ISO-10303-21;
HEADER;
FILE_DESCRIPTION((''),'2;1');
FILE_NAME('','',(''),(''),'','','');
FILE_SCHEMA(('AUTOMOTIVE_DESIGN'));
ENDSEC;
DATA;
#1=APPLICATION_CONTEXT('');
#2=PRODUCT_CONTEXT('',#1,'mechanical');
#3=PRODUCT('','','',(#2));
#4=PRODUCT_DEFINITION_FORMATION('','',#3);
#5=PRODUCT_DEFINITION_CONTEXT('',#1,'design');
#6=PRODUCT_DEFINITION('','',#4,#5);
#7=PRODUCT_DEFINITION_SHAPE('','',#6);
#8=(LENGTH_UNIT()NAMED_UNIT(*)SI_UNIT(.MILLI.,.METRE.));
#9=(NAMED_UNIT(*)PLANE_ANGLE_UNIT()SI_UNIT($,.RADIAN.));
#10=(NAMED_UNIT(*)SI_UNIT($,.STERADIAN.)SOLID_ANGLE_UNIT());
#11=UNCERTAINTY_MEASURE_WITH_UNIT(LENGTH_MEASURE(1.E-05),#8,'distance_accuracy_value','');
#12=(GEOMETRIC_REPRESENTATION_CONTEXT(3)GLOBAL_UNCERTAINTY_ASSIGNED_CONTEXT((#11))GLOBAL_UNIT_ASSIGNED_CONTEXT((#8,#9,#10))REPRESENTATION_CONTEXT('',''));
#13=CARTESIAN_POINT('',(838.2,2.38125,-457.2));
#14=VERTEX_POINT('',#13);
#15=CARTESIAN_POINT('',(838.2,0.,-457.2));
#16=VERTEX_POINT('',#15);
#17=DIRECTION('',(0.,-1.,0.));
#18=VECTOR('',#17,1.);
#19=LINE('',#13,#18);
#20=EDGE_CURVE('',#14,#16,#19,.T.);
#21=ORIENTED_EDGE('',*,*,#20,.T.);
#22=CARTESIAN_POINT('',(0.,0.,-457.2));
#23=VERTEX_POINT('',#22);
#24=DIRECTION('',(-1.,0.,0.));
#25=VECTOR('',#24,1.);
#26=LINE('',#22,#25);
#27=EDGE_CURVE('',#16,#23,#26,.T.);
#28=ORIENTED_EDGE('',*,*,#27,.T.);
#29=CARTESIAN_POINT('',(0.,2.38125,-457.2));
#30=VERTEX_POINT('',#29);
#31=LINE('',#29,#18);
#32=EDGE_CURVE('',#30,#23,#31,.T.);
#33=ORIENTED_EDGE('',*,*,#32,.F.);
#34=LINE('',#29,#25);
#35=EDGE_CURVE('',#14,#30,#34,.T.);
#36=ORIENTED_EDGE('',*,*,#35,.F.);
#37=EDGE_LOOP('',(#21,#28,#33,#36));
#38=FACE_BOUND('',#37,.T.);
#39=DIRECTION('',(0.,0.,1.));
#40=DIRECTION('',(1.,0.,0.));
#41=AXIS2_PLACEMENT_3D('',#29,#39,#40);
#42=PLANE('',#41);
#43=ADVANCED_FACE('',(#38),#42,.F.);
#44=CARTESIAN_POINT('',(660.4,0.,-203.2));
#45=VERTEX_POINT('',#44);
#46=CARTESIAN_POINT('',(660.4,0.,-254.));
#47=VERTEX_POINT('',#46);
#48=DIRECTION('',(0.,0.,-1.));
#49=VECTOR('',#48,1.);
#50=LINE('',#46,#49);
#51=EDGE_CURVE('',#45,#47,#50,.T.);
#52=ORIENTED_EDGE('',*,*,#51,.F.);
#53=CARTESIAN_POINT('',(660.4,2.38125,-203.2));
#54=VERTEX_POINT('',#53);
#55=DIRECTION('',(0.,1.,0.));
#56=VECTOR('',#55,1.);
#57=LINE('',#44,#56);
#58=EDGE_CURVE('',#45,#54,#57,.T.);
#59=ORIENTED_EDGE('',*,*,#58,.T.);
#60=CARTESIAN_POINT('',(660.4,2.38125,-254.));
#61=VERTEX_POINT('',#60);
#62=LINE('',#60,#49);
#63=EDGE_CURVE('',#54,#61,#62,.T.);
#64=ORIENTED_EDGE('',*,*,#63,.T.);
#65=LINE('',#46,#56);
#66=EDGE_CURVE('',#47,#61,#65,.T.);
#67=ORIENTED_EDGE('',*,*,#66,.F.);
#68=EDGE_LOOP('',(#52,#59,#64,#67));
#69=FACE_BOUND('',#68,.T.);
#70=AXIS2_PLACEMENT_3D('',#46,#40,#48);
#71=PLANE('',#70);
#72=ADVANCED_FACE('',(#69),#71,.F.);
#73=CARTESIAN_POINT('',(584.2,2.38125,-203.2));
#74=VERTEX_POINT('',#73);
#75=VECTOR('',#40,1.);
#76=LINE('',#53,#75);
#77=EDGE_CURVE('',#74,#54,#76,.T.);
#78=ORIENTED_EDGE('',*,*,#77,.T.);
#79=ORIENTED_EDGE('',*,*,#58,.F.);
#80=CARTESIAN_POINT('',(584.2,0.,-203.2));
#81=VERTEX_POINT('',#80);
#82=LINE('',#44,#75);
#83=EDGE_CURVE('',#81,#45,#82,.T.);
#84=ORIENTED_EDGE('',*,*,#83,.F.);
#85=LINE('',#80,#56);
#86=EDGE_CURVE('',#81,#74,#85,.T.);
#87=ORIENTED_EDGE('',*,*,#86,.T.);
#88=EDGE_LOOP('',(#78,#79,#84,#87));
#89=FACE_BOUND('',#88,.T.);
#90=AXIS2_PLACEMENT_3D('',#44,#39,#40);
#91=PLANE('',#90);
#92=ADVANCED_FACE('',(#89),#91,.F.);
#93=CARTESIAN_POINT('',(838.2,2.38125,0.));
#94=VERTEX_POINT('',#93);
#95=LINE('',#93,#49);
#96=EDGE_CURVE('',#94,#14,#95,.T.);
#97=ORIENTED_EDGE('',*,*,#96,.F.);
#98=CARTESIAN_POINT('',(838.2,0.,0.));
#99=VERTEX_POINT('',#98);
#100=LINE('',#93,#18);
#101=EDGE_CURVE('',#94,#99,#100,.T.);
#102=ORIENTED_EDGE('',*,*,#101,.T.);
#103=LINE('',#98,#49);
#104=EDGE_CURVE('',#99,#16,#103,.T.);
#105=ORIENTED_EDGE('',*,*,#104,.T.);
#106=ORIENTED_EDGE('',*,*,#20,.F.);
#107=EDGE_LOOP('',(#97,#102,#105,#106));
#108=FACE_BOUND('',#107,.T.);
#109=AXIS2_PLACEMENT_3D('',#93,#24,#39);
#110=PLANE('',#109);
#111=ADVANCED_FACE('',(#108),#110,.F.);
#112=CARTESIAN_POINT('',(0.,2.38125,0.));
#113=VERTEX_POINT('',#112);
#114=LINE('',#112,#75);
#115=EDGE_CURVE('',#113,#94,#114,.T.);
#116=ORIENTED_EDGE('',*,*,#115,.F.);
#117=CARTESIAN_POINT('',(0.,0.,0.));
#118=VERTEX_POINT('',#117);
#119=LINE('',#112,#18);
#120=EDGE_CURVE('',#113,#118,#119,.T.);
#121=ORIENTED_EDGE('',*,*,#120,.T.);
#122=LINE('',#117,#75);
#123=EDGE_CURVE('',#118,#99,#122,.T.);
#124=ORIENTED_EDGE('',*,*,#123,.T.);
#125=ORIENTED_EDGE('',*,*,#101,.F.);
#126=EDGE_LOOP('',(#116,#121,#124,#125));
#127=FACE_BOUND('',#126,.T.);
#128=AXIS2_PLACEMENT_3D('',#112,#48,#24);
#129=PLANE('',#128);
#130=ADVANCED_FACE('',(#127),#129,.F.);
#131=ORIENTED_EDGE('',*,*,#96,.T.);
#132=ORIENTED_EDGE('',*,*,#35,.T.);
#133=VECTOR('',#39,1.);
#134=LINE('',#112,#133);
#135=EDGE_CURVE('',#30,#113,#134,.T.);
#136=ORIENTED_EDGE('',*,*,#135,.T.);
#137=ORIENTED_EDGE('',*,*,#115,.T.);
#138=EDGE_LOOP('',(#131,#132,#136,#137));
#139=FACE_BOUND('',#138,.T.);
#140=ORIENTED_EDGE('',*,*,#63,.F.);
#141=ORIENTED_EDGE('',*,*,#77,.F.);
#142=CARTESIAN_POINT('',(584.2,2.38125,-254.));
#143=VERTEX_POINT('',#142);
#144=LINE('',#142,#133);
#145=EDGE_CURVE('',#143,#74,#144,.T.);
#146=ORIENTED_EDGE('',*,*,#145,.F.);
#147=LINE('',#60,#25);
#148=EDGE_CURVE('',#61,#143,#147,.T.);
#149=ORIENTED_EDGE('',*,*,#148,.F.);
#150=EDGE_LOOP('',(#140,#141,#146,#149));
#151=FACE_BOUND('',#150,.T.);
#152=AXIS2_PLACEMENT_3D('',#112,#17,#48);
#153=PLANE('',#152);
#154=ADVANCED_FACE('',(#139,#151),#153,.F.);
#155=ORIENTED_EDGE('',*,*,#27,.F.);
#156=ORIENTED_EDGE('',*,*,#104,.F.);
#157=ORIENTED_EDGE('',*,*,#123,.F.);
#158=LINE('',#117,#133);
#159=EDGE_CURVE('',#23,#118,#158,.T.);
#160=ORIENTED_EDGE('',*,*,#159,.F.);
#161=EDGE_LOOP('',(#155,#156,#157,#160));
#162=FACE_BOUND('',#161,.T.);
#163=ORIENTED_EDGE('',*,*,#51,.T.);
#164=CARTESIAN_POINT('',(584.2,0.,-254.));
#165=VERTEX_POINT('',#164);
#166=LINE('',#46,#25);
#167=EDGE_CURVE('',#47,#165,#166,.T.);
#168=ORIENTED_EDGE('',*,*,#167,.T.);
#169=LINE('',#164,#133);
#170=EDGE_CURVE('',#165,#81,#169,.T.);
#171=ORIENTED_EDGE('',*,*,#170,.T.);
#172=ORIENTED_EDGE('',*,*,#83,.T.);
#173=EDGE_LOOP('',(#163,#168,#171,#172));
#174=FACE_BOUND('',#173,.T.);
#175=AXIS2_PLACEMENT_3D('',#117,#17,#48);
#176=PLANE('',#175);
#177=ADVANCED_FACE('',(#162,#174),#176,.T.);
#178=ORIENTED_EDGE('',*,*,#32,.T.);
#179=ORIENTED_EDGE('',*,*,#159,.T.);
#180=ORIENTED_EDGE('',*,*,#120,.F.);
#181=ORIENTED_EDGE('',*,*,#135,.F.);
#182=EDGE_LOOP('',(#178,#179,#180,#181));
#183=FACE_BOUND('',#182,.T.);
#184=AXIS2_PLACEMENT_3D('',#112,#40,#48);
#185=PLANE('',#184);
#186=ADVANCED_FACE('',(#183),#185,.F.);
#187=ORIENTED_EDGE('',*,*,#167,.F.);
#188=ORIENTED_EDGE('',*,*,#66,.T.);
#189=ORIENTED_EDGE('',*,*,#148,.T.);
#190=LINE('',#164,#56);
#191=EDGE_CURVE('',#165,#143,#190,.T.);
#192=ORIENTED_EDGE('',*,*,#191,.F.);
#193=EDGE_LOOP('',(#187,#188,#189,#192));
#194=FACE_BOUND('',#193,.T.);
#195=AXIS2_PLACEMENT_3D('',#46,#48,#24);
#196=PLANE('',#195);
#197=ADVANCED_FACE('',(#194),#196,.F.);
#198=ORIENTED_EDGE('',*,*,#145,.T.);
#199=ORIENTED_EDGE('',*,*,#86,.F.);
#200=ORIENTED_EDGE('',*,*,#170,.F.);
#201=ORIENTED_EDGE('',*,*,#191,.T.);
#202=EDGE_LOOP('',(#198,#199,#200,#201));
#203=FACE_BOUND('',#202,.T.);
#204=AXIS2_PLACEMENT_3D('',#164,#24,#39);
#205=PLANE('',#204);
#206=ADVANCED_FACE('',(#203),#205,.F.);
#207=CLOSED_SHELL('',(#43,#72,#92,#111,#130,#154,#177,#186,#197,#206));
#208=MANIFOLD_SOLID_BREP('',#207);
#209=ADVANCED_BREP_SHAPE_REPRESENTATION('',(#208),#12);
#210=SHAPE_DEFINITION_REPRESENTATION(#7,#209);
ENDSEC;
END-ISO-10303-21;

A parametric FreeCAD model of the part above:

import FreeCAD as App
import Part
import Sketcher
Q = App.Units.Quantity

doc = App.newDocument("Part")
body = doc.addObject("PartDesign::Body", "Body")

# Sketch on XZ plane
sketch1 = doc.addObject("Sketcher::SketchObject", "Sketch")
body.addObject(sketch1)
sketch1.AttachmentSupport = (doc.XZ_Plane, [""])
sketch1.MapMode = "FlatFace"
sketch1.addGeometry([
    Part.LineSegment(App.Vector(0, -457, 0), App.Vector(0, 0, 0)),
    Part.LineSegment(App.Vector(0, 0, 0), App.Vector(838, 0, 0)),
    Part.LineSegment(App.Vector(838, 0, 0), App.Vector(838, -457, 0)),
    Part.LineSegment(App.Vector(838, -457, 0), App.Vector(0, -457, 0)),
], False)
sketch1.addConstraint([
    Sketcher.Constraint("Coincident", 0, 2, 1, 1),
    Sketcher.Constraint("Coincident", 1, 2, 2, 1),
    Sketcher.Constraint("Coincident", 2, 2, 3, 1),
    Sketcher.Constraint("Coincident", 3, 2, 0, 1),
    Sketcher.Constraint("Vertical", 0),
    Sketcher.Constraint("Horizontal", 1),
    Sketcher.Constraint("Vertical", 2),
    Sketcher.Constraint("Horizontal", 3),
    Sketcher.Constraint("Coincident", 0, 2, -1, 1),
    Sketcher.Constraint("DistanceX", 1, 1, 1, 2, Q("33 in")),
    Sketcher.Constraint("DistanceY", 0, 1, 0, 2, Q("18 in")),
])
pad1 = doc.addObject("PartDesign::Pad", "Pad")
body.addObject(pad1)
pad1.Profile = sketch1
pad1.Length = Q("0.09375 in")
pad1.Reversed = True

# Sketch on XZ plane
sketch2 = doc.addObject("Sketcher::SketchObject", "Sketch001")
body.addObject(sketch2)
sketch2.AttachmentSupport = (doc.XZ_Plane, [""])
sketch2.MapMode = "FlatFace"
sketch2.AttachmentOffset = App.Placement(App.Vector(0, 0, -0.09375 * 25.4), App.Rotation())
sketch2.addGeometry([
    Part.LineSegment(App.Vector(584, -254, 0), App.Vector(584, -203, 0)),
    Part.LineSegment(App.Vector(584, -203, 0), App.Vector(660, -203, 0)),
    Part.LineSegment(App.Vector(660, -203, 0), App.Vector(660, -254, 0)),
    Part.LineSegment(App.Vector(660, -254, 0), App.Vector(584, -254, 0)),
], False)
sketch2.addConstraint([
    Sketcher.Constraint("Coincident", 0, 2, 1, 1),
    Sketcher.Constraint("Coincident", 1, 2, 2, 1),
    Sketcher.Constraint("Coincident", 2, 2, 3, 1),
    Sketcher.Constraint("Coincident", 3, 2, 0, 1),
    Sketcher.Constraint("Vertical", 0),
    Sketcher.Constraint("Horizontal", 1),
    Sketcher.Constraint("Vertical", 2),
    Sketcher.Constraint("Horizontal", 3),
    Sketcher.Constraint("DistanceX", 1, 1, 1, 2, Q("3 in")),
    Sketcher.Constraint("DistanceY", 0, 1, 0, 2, Q("2 in")),
    Sketcher.Constraint("DistanceX", -1, 1, 0, 2, Q("23 in")),
    Sketcher.Constraint("DistanceY", 0, 2, -1, 1, Q("8 in")),
])
pocket1 = doc.addObject("PartDesign::Pocket", "Pocket")
body.addObject(pocket1)
pocket1.Profile = sketch2
pocket1.Type = "ThroughAll"
pocket1.Reversed = True

doc.recompute()
